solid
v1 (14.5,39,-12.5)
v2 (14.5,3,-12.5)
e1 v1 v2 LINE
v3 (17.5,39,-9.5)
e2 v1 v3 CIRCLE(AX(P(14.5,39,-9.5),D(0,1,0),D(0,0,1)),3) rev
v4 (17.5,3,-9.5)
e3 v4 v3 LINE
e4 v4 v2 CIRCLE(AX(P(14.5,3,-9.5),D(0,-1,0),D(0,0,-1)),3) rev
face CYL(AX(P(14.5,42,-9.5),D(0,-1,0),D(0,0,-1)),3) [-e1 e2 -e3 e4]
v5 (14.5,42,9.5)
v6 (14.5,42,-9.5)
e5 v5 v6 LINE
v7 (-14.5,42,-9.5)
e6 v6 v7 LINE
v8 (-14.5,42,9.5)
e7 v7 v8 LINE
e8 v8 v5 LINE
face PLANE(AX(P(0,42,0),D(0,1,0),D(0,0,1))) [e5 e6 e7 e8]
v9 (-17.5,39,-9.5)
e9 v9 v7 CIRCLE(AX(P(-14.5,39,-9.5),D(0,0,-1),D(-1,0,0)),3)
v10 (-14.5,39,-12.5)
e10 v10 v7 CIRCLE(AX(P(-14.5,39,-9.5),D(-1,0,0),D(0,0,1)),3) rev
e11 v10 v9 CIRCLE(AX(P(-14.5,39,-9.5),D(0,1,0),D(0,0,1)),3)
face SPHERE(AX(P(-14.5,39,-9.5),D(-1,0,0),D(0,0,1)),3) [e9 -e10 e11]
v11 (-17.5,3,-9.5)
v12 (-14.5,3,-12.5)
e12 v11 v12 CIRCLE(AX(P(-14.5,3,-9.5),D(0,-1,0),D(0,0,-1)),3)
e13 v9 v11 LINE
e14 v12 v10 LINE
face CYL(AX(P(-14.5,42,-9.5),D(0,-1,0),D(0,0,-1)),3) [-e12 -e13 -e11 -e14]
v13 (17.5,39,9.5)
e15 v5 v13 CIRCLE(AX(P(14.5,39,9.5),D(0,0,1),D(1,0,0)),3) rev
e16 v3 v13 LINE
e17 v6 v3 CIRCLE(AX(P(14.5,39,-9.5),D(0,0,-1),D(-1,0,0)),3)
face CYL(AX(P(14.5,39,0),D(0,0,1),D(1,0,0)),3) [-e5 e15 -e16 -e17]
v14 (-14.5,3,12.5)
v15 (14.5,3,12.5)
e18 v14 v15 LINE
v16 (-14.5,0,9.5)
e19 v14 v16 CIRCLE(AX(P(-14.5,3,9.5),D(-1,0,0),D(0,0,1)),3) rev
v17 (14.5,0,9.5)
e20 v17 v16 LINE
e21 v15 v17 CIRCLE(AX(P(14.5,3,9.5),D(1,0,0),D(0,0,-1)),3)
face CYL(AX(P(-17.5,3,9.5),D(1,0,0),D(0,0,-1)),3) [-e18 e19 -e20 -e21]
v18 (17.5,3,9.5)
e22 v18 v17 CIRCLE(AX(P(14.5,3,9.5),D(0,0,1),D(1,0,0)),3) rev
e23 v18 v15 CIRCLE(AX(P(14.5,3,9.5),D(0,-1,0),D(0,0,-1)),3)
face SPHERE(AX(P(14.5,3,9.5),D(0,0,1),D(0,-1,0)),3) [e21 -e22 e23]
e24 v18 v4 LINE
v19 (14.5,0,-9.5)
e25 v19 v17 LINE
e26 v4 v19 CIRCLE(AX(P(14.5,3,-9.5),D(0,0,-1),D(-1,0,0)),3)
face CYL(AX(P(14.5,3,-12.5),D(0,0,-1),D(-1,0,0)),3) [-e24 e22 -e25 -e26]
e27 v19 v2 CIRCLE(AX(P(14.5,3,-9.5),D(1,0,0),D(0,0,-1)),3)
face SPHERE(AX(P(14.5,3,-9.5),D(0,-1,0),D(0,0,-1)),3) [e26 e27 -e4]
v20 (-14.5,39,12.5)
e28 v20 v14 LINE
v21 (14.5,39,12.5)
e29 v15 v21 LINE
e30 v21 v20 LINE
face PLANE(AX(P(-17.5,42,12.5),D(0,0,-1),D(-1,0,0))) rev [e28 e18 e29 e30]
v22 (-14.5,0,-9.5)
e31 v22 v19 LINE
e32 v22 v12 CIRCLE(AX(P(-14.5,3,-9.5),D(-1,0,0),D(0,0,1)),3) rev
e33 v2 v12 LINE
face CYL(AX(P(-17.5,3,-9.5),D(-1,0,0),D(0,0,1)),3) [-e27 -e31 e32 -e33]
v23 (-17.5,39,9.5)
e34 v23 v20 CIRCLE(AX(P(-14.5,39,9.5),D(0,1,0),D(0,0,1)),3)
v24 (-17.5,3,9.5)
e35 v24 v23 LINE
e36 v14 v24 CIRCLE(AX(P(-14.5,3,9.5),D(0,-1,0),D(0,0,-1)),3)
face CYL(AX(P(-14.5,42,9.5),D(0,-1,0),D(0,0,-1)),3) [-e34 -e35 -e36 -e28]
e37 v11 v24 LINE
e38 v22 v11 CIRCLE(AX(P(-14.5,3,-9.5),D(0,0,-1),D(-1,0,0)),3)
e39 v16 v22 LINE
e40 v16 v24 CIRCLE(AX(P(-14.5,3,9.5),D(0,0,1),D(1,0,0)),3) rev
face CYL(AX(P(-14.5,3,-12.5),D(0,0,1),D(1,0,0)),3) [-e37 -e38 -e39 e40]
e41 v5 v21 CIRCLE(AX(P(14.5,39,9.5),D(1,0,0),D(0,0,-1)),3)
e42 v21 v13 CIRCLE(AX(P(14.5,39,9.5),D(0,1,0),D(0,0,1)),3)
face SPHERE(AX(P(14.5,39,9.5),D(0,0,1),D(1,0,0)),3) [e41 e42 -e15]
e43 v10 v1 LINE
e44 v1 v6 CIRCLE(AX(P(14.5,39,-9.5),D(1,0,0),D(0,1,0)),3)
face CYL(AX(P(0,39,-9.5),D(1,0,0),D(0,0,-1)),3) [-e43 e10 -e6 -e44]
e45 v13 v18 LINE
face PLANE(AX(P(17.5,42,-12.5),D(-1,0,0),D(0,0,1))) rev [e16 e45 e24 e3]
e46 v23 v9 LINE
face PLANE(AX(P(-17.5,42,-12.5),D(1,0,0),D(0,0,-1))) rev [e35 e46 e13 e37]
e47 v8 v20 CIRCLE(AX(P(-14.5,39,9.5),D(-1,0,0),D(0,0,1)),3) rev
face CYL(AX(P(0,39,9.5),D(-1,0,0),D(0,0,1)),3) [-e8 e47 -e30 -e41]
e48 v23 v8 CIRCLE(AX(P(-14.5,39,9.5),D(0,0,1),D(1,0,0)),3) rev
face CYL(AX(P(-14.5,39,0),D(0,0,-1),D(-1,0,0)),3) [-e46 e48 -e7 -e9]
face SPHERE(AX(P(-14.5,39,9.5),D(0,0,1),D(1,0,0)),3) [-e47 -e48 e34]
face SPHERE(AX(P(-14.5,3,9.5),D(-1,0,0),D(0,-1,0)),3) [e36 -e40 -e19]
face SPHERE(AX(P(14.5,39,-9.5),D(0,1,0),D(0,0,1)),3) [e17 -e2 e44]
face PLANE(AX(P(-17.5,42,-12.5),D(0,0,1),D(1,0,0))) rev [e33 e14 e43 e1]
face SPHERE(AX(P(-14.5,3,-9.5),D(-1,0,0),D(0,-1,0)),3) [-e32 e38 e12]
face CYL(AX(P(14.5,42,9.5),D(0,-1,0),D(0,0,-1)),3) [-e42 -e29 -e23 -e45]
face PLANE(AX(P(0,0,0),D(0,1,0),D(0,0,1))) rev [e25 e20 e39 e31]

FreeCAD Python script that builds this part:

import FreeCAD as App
import Part
import Sketcher
from FreeCAD import Vector
Q = App.Units.Quantity


def add_polygon(sketch, points):
    """Adds a closed chain of lines whose ends are joined by coincident constraints."""
    first, n = sketch.GeometryCount, len(points)
    for a, b in zip(points, points[1:] + points[:1]):
        sketch.addGeometry(Part.LineSegment(App.Vector(*a, 0), App.Vector(*b, 0)), False)
    for i in range(n):
        sketch.addConstraint(Sketcher.Constraint("Coincident", first + i, 2, first + (i + 1) % n, 1))

doc = App.newDocument("Part")
params = doc.addObject("Spreadsheet::Sheet", "Params")
for row, (alias, value) in enumerate([
    ("sketch1_width", "35 mm"),
    ("sketch1_height", "25 mm"),
    ("pad1_length", "42 mm"),
    ("fillet_radius", "3 mm"),
], start=1):
    params.set(f"A{row}", alias)
    params.set(f"B{row}", "=" + value)
    params.setAlias(f"B{row}", alias)

body = doc.addObject("PartDesign::Body", "Body")

sketch1 = doc.addObject("Sketcher::SketchObject", "Sketch")
body.addObject(sketch1)
sketch1.AttachmentSupport = (doc.XZ_Plane, [""])
sketch1.MapMode = "FlatFace"
add_polygon(sketch1, [(-17.5, -12.5), (-17.5, 12.5), (17.5, 12.5), (17.5, -12.5)])
sketch1.addConstraint(Sketcher.Constraint("Vertical", 0))
sketch1.addConstraint(Sketcher.Constraint("Horizontal", 1))
sketch1.addConstraint(Sketcher.Constraint("Vertical", 2))
sketch1.addConstraint(Sketcher.Constraint("Horizontal", 3))
sketch1.addConstraint(Sketcher.Constraint("Symmetric", 0, 2, 2, 2, -1, 1))
sketch1.addConstraint(Sketcher.Constraint("DistanceX", 1, 1, 1, 2, Q("35 mm")))
sketch1.addConstraint(Sketcher.Constraint("DistanceY", 0, 1, 0, 2, Q("25 mm")))
sketch1.setExpression("Constraints[9]", "Params.sketch1_width")
sketch1.setExpression("Constraints[10]", "Params.sketch1_height")
pad1 = doc.addObject("PartDesign::Pad", "Pad")
body.addObject(pad1)
pad1.Profile = sketch1
pad1.setExpression("Length", "Params.pad1_length")
pad1.Reversed = True
doc.recompute()

fillet = doc.addObject("PartDesign::Fillet", "Fillet")
body.addObject(fillet)
fillet.Base = (pad1, ["Edge1"])
fillet.UseAllEdges = True
fillet.setExpression("Radius", "Params.fillet_radius")

doc.recompute()
